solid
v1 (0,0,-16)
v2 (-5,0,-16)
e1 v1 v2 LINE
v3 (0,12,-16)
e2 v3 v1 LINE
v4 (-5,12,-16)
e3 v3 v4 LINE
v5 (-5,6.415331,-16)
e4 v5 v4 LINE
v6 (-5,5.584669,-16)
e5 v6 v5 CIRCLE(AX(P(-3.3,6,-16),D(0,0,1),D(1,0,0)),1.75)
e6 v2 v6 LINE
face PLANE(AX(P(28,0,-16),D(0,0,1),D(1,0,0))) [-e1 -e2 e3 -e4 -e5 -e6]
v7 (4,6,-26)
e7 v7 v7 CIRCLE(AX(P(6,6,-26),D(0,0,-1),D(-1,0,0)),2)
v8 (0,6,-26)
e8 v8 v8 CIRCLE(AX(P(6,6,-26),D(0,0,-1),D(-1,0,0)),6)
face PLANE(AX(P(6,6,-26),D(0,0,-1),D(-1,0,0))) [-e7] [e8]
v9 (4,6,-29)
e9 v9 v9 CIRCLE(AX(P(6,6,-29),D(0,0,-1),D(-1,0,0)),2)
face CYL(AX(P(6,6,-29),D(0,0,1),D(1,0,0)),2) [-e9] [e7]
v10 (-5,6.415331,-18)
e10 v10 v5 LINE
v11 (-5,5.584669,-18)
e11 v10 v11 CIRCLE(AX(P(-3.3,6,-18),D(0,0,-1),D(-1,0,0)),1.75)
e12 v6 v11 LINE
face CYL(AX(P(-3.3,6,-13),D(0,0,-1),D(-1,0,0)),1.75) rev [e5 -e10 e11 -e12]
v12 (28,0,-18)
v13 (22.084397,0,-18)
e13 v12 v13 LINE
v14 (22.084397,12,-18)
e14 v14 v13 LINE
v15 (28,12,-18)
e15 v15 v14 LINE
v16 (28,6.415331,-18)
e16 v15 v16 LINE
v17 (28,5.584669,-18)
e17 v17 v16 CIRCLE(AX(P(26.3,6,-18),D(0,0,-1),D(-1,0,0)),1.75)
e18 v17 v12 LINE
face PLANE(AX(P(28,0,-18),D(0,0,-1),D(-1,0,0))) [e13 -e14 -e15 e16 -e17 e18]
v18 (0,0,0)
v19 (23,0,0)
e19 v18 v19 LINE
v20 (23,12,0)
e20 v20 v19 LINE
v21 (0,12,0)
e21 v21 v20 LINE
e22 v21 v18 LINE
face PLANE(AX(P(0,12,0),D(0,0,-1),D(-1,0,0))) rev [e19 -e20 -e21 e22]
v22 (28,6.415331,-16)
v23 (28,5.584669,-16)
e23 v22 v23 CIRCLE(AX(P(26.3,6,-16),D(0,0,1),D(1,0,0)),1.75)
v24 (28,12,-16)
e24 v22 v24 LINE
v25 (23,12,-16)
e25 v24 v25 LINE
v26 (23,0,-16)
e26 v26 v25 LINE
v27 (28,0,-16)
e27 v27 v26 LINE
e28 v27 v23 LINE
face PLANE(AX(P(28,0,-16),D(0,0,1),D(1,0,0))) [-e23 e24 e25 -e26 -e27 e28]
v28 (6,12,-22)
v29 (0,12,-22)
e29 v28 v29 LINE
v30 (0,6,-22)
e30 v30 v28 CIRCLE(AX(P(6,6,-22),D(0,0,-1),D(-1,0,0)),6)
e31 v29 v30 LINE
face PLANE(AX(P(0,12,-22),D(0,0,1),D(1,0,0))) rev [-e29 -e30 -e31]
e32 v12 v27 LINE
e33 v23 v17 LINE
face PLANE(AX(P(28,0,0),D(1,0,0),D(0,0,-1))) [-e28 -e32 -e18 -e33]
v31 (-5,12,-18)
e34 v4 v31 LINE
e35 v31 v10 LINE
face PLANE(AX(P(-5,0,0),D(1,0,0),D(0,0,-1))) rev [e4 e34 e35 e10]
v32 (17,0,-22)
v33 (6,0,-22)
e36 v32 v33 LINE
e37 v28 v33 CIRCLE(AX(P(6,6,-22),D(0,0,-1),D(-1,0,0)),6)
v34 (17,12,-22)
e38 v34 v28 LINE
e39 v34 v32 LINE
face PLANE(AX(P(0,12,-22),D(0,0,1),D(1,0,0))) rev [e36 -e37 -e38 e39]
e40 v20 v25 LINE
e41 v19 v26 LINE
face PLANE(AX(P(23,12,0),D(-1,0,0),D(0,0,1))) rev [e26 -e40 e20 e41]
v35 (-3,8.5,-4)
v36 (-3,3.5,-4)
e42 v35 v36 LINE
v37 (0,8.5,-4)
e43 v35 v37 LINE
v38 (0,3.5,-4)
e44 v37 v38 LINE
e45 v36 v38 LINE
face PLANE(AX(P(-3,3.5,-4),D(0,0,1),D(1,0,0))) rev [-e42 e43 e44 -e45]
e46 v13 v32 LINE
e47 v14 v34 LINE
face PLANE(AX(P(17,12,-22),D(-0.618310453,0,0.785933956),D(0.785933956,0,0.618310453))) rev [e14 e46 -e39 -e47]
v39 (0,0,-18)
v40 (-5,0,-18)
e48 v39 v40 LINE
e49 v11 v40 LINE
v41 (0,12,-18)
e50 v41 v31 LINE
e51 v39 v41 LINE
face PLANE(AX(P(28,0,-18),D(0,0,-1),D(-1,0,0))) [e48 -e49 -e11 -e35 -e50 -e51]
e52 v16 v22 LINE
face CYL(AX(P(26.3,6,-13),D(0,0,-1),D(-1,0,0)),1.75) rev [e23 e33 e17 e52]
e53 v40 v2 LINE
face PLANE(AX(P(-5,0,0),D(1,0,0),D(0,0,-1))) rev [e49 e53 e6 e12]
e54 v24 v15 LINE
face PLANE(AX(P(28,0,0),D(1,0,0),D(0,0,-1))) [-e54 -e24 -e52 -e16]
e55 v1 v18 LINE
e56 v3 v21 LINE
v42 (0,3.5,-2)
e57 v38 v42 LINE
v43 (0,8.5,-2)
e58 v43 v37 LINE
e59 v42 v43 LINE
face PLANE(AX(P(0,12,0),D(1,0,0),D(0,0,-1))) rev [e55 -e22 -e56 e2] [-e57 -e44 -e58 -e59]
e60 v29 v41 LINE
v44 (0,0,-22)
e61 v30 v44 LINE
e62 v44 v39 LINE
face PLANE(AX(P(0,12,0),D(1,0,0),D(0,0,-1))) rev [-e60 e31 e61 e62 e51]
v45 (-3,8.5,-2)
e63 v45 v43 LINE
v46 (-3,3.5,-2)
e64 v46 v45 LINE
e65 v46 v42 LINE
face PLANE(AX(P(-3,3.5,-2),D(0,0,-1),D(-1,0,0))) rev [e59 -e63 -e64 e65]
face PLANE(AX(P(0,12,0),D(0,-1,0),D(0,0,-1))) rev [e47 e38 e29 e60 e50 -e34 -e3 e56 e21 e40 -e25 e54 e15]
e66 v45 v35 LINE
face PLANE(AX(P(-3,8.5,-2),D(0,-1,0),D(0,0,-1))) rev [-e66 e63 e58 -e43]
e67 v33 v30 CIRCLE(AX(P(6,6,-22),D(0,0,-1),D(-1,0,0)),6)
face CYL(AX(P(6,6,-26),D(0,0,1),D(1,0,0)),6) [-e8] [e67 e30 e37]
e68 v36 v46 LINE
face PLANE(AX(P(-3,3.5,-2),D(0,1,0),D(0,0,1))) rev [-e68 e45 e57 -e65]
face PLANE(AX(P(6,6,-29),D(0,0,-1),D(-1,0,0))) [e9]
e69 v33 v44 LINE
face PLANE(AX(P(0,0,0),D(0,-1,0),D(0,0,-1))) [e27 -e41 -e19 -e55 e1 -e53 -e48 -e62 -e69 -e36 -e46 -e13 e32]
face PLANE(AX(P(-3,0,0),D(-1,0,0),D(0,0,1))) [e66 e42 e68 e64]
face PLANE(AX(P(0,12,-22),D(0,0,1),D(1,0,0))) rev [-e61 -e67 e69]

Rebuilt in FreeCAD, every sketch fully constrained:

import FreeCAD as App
import Part
import Sketcher
from FreeCAD import Vector

doc = App.newDocument("Part")
params = doc.addObject("Spreadsheet::Sheet", "Params")
for row, (alias, value) in enumerate([
    ("sketch1_width", "17 mm"),
    ("sketch1_width2", "23 mm"),
    ("sketch1_height", "22 mm"),
    ("pad1_length", "12 mm"),
    ("sketch2_width", "12 mm"),
    ("sketch2_height", "2 mm"),
    ("pad2_length", "5 mm"),
    ("pad2_length2", "28 mm"),
    ("sketch3_diameter", "3.5 mm"),
    ("pocket1_length", "5 mm"),
    ("sketch4_diameter", "3.5 mm"),
    ("pocket2_length", "5 mm"),
    ("sketch5_diameter", "12 mm"),
    ("pad3_length", "4 mm"),
    ("sketch6_diameter", "4 mm"),
    ("pad4_length", "3 mm"),
    ("sketch7_width", "5 mm"),
    ("sketch7_height", "2 mm"),
    ("pad5_length", "3 mm"),
], start=1):
    params.set(f"A{row}", alias)
    params.set(f"B{row}", "=" + value)
    params.setAlias(f"B{row}", alias)

body = doc.addObject("PartDesign::Body", "Body")

# Sketch on XZ plane
sketch1 = doc.addObject("Sketcher::SketchObject", "Sketch")
body.addObject(sketch1)
sketch1.AttachmentSupport = (doc.XZ_Plane, [""])
sketch1.MapMode = "FlatFace"
sketch1.addGeometry([
    Part.LineSegment(Vector(23, -17, 0), Vector(17, -22, 0)),  # 0
    Part.LineSegment(Vector(17, -22, 0), Vector(0, -22, 0)),  # 1
    Part.LineSegment(Vector(0, -22, 0), Vector(0, 0, 0)),  # 2
    Part.LineSegment(Vector(0, 0, 0), Vector(23, 0, 0)),  # 3
    Part.LineSegment(Vector(23, 0, 0), Vector(23, -17, 0)),  # 4
], False)
sketch1.addConstraint([
    Sketcher.Constraint("Coincident", 0, 2, 1, 1),
    Sketcher.Constraint("Coincident", 1, 2, 2, 1),
    Sketcher.Constraint("Coincident", 2, 2, 3, 1),
    Sketcher.Constraint("Coincident", 3, 2, 4, 1),
    Sketcher.Constraint("Coincident", 4, 2, 0, 1),
    Sketcher.Constraint("Horizontal", 1),
    Sketcher.Constraint("Vertical", 2),
    Sketcher.Constraint("Horizontal", 3),
    Sketcher.Constraint("Vertical", 4),
    Sketcher.Constraint("Coincident", 2, 2, -1, 1),
    Sketcher.Constraint("DistanceX", 1, 2, 1, 1, 17.0),
    Sketcher.Constraint("DistanceX", 3, 1, 3, 2, 23.0),
    Sketcher.Constraint("DistanceY", 2, 1, 2, 2, 22.0),
    Sketcher.Constraint("Distance", 0, 7.634229),
])
sketch1.setExpression("Constraints[10]", "Params.sketch1_width")
sketch1.setExpression("Constraints[11]", "Params.sketch1_width2")
sketch1.setExpression("Constraints[12]", "Params.sketch1_height")
pad1 = doc.addObject("PartDesign::Pad", "Pad")
body.addObject(pad1)
pad1.Profile = sketch1
pad1.setExpression("Length", "Params.pad1_length")
pad1.Reversed = True

# Sketch on YZ plane
sketch2 = doc.addObject("Sketcher::SketchObject", "Sketch001")
body.addObject(sketch2)
sketch2.AttachmentSupport = (doc.YZ_Plane, [""])
sketch2.MapMode = "FlatFace"
sketch2.addGeometry([
    Part.LineSegment(Vector(12, -18, 0), Vector(0, -18, 0)),
    Part.LineSegment(Vector(0, -18, 0), Vector(0, -16, 0)),
    Part.LineSegment(Vector(0, -16, 0), Vector(12, -16, 0)),
    Part.LineSegment(Vector(12, -16, 0), Vector(12, -18, 0)),
], False)
sketch2.addConstraint([
    Sketcher.Constraint("Coincident", 0, 2, 1, 1),
    Sketcher.Constraint("Coincident", 1, 2, 2, 1),
    Sketcher.Constraint("Coincident", 2, 2, 3, 1),
    Sketcher.Constraint("Coincident", 3, 2, 0, 1),
    Sketcher.Constraint("Horizontal", 0),
    Sketcher.Constraint("Vertical", 1),
    Sketcher.Constraint("Horizontal", 2),
    Sketcher.Constraint("Vertical", 3),
    Sketcher.Constraint("PointOnObject", 0, 2, -2),
    Sketcher.Constraint("DistanceX", 0, 2, 0, 1, 12.0),
    Sketcher.Constraint("DistanceY", 1, 1, 1, 2, 2.0),
    Sketcher.Constraint("DistanceY", 0, 2, -1, 1, 18.0),
])
sketch2.setExpression("Constraints[9]", "Params.sketch2_width")
sketch2.setExpression("Constraints[10]", "Params.sketch2_height")
pad2 = doc.addObject("PartDesign::Pad", "Pad001")
body.addObject(pad2)
pad2.Profile = sketch2
pad2.Type = "TwoLengths"
pad2.setExpression("Length", "Params.pad2_length")
pad2.setExpression("Length2", "Params.pad2_length2")
pad2.Reversed = True

# Sketch on XY plane
sketch3 = doc.addObject("Sketcher::SketchObject", "Sketch002")
body.addObject(sketch3)
sketch3.AttachmentSupport = (doc.XY_Plane, [""])
sketch3.MapMode = "FlatFace"
sketch3.AttachmentOffset = App.Placement(Vector(0, 0, -18), App.Rotation())
sketch3.addGeometry(Part.Circle(Vector(-3.3, 6, 0), Vector(0, 0, 1), 1.8), False)
sketch3.addConstraint([
    Sketcher.Constraint("Diameter", 0, 3.5),
    Sketcher.Constraint("DistanceY", -1, 1, 0, 3, 6.0),
    Sketcher.Constraint("DistanceX", 0, 3, -1, 1, 3.3),
])
sketch3.setExpression("Constraints[0]", "Params.sketch3_diameter")
pocket1 = doc.addObject("PartDesign::Pocket", "Pocket")
body.addObject(pocket1)
pocket1.Profile = sketch3
pocket1.setExpression("Length", "Params.pocket1_length")
pocket1.Reversed = True

# Sketch on XY plane
sketch4 = doc.addObject("Sketcher::SketchObject", "Sketch003")
body.addObject(sketch4)
sketch4.AttachmentSupport = (doc.XY_Plane, [""])
sketch4.MapMode = "FlatFace"
sketch4.AttachmentOffset = App.Placement(Vector(0, 0, -18), App.Rotation())
sketch4.addGeometry(Part.Circle(Vector(26.3, 6, 0), Vector(0, 0, 1), 1.8), False)
sketch4.addConstraint([
    Sketcher.Constraint("Diameter", 0, 3.5),
    Sketcher.Constraint("DistanceY", -1, 1, 0, 3, 6.0),
    Sketcher.Constraint("DistanceX", -1, 1, 0, 3, 26.3),
])
sketch4.setExpression("Constraints[0]", "Params.sketch4_diameter")
pocket2 = doc.addObject("PartDesign::Pocket", "Pocket001")
body.addObject(pocket2)
pocket2.Profile = sketch4
pocket2.setExpression("Length", "Params.pocket2_length")
pocket2.Reversed = True

# Sketch on XY plane
sketch5 = doc.addObject("Sketcher::SketchObject", "Sketch004")
body.addObject(sketch5)
sketch5.AttachmentSupport = (doc.XY_Plane, [""])
sketch5.MapMode = "FlatFace"
sketch5.AttachmentOffset = App.Placement(Vector(0, 0, -22), App.Rotation())
sketch5.addGeometry(Part.Circle(Vector(6, 6, 0), Vector(0, 0, 1), 6), False)
sketch5.addConstraint([
    Sketcher.Constraint("Diameter", 0, 12.0),
    Sketcher.Constraint("DistanceX", -1, 1, 0, 3, 6.0),
    Sketcher.Constraint("DistanceY", -1, 1, 0, 3, 6.0),
])
sketch5.setExpression("Constraints[0]", "Params.sketch5_diameter")
pad3 = doc.addObject("PartDesign::Pad", "Pad002")
body.addObject(pad3)
pad3.Profile = sketch5
pad3.setExpression("Length", "Params.pad3_length")
pad3.Reversed = True

# Sketch on XY plane
sketch6 = doc.addObject("Sketcher::SketchObject", "Sketch005")
body.addObject(sketch6)
sketch6.AttachmentSupport = (doc.XY_Plane, [""])
sketch6.MapMode = "FlatFace"
sketch6.AttachmentOffset = App.Placement(Vector(0, 0, -26), App.Rotation())
sketch6.addGeometry(Part.Circle(Vector(6, 6, 0), Vector(0, 0, 1), 2), False)
sketch6.addConstraint([
    Sketcher.Constraint("Diameter", 0, 4.0),
    Sketcher.Constraint("DistanceX", -1, 1, 0, 3, 6.0),
    Sketcher.Constraint("DistanceY", -1, 1, 0, 3, 6.0),
])
sketch6.setExpression("Constraints[0]", "Params.sketch6_diameter")
pad4 = doc.addObject("PartDesign::Pad", "Pad003")
body.addObject(pad4)
pad4.Profile = sketch6
pad4.setExpression("Length", "Params.pad4_length")
pad4.Reversed = True

# Sketch on YZ plane
sketch7 = doc.addObject("Sketcher::SketchObject", "Sketch006")
body.addObject(sketch7)
sketch7.AttachmentSupport = (doc.YZ_Plane, [""])
sketch7.MapMode = "FlatFace"
sketch7.addGeometry([
    Part.LineSegment(Vector(8.5, -4, 0), Vector(3.5, -4, 0)),
    Part.LineSegment(Vector(3.5, -4, 0), Vector(3.5, -2, 0)),
    Part.LineSegment(Vector(3.5, -2, 0), Vector(8.5, -2, 0)),
    Part.LineSegment(Vector(8.5, -2, 0), Vector(8.5, -4, 0)),
], False)
sketch7.addConstraint([
    Sketcher.Constraint("Coincident", 0, 2, 1, 1),
    Sketcher.Constraint("Coincident", 1, 2, 2, 1),
    Sketcher.Constraint("Coincident", 2, 2, 3, 1),
    Sketcher.Constraint("Coincident", 3, 2, 0, 1),
    Sketcher.Constraint("Horizontal", 0),
    Sketcher.Constraint("Vertical", 1),
    Sketcher.Constraint("Horizontal", 2),
    Sketcher.Constraint("Vertical", 3),
    Sketcher.Constraint("DistanceX", 0, 2, 0, 1, 5.0),
    Sketcher.Constraint("DistanceY", 1, 1, 1, 2, 2.0),
    Sketcher.Constraint("DistanceY", 0, 2, -1, 1, 4.0),
    Sketcher.Constraint("DistanceX", -1, 1, 0, 2, 3.5),
])
sketch7.setExpression("Constraints[8]", "Params.sketch7_width")
sketch7.setExpression("Constraints[9]", "Params.sketch7_height")
pad5 = doc.addObject("PartDesign::Pad", "Pad004")
body.addObject(pad5)
pad5.Profile = sketch7
pad5.setExpression("Length", "Params.pad5_length")
pad5.Reversed = True

doc.recompute()
